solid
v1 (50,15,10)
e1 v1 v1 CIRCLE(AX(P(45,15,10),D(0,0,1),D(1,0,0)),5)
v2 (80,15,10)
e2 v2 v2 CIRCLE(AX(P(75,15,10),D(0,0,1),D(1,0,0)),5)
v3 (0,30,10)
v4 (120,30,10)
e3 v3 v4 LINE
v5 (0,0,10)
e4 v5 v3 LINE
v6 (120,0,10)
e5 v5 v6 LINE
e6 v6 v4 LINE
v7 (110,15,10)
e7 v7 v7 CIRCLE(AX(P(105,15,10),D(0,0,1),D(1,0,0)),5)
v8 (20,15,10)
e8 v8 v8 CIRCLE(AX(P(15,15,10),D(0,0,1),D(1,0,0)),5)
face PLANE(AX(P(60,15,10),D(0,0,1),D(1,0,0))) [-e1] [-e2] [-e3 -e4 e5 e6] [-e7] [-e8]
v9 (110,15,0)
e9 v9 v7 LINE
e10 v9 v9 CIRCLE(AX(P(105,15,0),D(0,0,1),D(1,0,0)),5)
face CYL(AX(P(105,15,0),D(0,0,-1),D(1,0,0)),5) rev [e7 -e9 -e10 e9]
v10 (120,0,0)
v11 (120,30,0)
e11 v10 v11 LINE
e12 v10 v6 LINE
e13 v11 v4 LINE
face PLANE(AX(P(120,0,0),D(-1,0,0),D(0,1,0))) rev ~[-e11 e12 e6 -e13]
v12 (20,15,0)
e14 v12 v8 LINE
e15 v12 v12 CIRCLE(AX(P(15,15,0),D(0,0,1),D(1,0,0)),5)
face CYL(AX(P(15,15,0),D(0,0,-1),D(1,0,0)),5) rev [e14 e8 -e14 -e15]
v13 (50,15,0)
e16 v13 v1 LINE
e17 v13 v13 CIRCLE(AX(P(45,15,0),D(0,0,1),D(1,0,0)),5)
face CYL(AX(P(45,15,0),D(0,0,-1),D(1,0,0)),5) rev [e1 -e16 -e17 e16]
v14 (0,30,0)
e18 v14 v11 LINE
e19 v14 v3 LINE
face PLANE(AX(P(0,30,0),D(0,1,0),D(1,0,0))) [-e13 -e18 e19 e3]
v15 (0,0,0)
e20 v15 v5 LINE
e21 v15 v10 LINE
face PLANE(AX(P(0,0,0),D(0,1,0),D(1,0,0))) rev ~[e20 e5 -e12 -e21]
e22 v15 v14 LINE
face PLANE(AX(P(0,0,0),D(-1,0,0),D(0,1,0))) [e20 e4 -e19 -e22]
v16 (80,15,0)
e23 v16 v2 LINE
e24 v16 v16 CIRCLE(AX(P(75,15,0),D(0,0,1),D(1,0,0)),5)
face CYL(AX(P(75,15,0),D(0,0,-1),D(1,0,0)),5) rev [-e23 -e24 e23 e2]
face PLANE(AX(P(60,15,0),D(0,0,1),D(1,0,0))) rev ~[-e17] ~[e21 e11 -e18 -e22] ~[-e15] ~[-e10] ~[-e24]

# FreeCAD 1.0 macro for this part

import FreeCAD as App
import Part
import Sketcher
from FreeCAD import Vector
Q = App.Units.Quantity


def add_polygon(sketch, points):
    """Adds a closed chain of lines whose ends are joined by coincident constraints."""
    first, n = sketch.GeometryCount, len(points)
    for a, b in zip(points, points[1:] + points[:1]):
        sketch.addGeometry(Part.LineSegment(App.Vector(*a, 0), App.Vector(*b, 0)), False)
    for i in range(n):
        sketch.addConstraint(Sketcher.Constraint("Coincident", first + i, 2, first + (i + 1) % n, 1))

doc = App.newDocument("Part")
params = doc.addObject("Spreadsheet::Sheet", "Params")
for row, (alias, value) in enumerate([
    ("sketch1_diameter", "10 mm"),
    ("sketch1_width", "120 mm"),
    ("sketch1_height", "30 mm"),
    ("pad1_length", "10 mm"),
], start=1):
    params.set(f"A{row}", alias)
    params.set(f"B{row}", "=" + value)
    params.setAlias(f"B{row}", alias)

body = doc.addObject("PartDesign::Body", "Body")

# Sketch on XY plane
sketch1 = body.newObject("Sketcher::SketchObject", "Sketch")
sketch1.AttachmentSupport = (doc.getObject("XY_Plane"), [""])
sketch1.MapMode = "FlatFace"
add_polygon(sketch1, [(0, 30), (0, 0), (120, 0), (120, 30)])  # lines 0-3
sketch1.addGeometry(Part.Circle(Vector(15, 15, 0), Vector(0, 0, 1), 5), False)  # 4
sketch1.addGeometry(Part.Circle(Vector(45, 15, 0), Vector(0, 0, 1), 5), False)  # 5
sketch1.addGeometry(Part.Circle(Vector(75, 15, 0), Vector(0, 0, 1), 5), False)  # 6
sketch1.addGeometry(Part.Circle(Vector(105, 15, 0), Vector(0, 0, 1), 5), False)  # 7
sketch1.addConstraint(Sketcher.Constraint("Vertical", 0))
sketch1.addConstraint(Sketcher.Constraint("Horizontal", 1))
sketch1.addConstraint(Sketcher.Constraint("Vertical", 2))
sketch1.addConstraint(Sketcher.Constraint("Horizontal", 3))
sketch1.addConstraint(Sketcher.Constraint("Coincident", 0, 2, -1, 1))
sketch1.addConstraint(Sketcher.Constraint("Equal", 4, 5))
sketch1.addConstraint(Sketcher.Constraint("Equal", 5, 6))
sketch1.addConstraint(Sketcher.Constraint("Equal", 6, 7))
sketch1.addConstraint(Sketcher.Constraint("Horizontal", 4, 3, 5, 3))
sketch1.addConstraint(Sketcher.Constraint("Horizontal", 5, 3, 6, 3))
sketch1.addConstraint(Sketcher.Constraint("Horizontal", 6, 3, 7, 3))
sketch1.addConstraint(Sketcher.Constraint("Diameter", 4, Q("10 mm")))
sketch1.addConstraint(Sketcher.Constraint("DistanceX", 1, 1, 1, 2, Q("120 mm")))
sketch1.addConstraint(Sketcher.Constraint("DistanceY", 0, 2, 0, 1, Q("30 mm")))
sketch1.addConstraint(Sketcher.Constraint("DistanceX", -1, 1, 4, 3, Q("15 mm")))
sketch1.addConstraint(Sketcher.Constraint("DistanceY", -1, 1, 4, 3, Q("15 mm")))
sketch1.addConstraint(Sketcher.Constraint("DistanceX", -1, 1, 5, 3, Q("45 mm")))
sketch1.addConstraint(Sketcher.Constraint("DistanceX", -1, 1, 6, 3, Q("75 mm")))
sketch1.addConstraint(Sketcher.Constraint("DistanceX", -1, 1, 7, 3, Q("105 mm")))
sketch1.setExpression("Constraints[15]", "Params.sketch1_diameter")
sketch1.setExpression("Constraints[16]", "Params.sketch1_width")
sketch1.setExpression("Constraints[17]", "Params.sketch1_height")
pad1 = body.newObject("PartDesign::Pad", "Pad")
pad1.Profile = sketch1
pad1.setExpression("Length", "Params.pad1_length")

doc.recompute()
